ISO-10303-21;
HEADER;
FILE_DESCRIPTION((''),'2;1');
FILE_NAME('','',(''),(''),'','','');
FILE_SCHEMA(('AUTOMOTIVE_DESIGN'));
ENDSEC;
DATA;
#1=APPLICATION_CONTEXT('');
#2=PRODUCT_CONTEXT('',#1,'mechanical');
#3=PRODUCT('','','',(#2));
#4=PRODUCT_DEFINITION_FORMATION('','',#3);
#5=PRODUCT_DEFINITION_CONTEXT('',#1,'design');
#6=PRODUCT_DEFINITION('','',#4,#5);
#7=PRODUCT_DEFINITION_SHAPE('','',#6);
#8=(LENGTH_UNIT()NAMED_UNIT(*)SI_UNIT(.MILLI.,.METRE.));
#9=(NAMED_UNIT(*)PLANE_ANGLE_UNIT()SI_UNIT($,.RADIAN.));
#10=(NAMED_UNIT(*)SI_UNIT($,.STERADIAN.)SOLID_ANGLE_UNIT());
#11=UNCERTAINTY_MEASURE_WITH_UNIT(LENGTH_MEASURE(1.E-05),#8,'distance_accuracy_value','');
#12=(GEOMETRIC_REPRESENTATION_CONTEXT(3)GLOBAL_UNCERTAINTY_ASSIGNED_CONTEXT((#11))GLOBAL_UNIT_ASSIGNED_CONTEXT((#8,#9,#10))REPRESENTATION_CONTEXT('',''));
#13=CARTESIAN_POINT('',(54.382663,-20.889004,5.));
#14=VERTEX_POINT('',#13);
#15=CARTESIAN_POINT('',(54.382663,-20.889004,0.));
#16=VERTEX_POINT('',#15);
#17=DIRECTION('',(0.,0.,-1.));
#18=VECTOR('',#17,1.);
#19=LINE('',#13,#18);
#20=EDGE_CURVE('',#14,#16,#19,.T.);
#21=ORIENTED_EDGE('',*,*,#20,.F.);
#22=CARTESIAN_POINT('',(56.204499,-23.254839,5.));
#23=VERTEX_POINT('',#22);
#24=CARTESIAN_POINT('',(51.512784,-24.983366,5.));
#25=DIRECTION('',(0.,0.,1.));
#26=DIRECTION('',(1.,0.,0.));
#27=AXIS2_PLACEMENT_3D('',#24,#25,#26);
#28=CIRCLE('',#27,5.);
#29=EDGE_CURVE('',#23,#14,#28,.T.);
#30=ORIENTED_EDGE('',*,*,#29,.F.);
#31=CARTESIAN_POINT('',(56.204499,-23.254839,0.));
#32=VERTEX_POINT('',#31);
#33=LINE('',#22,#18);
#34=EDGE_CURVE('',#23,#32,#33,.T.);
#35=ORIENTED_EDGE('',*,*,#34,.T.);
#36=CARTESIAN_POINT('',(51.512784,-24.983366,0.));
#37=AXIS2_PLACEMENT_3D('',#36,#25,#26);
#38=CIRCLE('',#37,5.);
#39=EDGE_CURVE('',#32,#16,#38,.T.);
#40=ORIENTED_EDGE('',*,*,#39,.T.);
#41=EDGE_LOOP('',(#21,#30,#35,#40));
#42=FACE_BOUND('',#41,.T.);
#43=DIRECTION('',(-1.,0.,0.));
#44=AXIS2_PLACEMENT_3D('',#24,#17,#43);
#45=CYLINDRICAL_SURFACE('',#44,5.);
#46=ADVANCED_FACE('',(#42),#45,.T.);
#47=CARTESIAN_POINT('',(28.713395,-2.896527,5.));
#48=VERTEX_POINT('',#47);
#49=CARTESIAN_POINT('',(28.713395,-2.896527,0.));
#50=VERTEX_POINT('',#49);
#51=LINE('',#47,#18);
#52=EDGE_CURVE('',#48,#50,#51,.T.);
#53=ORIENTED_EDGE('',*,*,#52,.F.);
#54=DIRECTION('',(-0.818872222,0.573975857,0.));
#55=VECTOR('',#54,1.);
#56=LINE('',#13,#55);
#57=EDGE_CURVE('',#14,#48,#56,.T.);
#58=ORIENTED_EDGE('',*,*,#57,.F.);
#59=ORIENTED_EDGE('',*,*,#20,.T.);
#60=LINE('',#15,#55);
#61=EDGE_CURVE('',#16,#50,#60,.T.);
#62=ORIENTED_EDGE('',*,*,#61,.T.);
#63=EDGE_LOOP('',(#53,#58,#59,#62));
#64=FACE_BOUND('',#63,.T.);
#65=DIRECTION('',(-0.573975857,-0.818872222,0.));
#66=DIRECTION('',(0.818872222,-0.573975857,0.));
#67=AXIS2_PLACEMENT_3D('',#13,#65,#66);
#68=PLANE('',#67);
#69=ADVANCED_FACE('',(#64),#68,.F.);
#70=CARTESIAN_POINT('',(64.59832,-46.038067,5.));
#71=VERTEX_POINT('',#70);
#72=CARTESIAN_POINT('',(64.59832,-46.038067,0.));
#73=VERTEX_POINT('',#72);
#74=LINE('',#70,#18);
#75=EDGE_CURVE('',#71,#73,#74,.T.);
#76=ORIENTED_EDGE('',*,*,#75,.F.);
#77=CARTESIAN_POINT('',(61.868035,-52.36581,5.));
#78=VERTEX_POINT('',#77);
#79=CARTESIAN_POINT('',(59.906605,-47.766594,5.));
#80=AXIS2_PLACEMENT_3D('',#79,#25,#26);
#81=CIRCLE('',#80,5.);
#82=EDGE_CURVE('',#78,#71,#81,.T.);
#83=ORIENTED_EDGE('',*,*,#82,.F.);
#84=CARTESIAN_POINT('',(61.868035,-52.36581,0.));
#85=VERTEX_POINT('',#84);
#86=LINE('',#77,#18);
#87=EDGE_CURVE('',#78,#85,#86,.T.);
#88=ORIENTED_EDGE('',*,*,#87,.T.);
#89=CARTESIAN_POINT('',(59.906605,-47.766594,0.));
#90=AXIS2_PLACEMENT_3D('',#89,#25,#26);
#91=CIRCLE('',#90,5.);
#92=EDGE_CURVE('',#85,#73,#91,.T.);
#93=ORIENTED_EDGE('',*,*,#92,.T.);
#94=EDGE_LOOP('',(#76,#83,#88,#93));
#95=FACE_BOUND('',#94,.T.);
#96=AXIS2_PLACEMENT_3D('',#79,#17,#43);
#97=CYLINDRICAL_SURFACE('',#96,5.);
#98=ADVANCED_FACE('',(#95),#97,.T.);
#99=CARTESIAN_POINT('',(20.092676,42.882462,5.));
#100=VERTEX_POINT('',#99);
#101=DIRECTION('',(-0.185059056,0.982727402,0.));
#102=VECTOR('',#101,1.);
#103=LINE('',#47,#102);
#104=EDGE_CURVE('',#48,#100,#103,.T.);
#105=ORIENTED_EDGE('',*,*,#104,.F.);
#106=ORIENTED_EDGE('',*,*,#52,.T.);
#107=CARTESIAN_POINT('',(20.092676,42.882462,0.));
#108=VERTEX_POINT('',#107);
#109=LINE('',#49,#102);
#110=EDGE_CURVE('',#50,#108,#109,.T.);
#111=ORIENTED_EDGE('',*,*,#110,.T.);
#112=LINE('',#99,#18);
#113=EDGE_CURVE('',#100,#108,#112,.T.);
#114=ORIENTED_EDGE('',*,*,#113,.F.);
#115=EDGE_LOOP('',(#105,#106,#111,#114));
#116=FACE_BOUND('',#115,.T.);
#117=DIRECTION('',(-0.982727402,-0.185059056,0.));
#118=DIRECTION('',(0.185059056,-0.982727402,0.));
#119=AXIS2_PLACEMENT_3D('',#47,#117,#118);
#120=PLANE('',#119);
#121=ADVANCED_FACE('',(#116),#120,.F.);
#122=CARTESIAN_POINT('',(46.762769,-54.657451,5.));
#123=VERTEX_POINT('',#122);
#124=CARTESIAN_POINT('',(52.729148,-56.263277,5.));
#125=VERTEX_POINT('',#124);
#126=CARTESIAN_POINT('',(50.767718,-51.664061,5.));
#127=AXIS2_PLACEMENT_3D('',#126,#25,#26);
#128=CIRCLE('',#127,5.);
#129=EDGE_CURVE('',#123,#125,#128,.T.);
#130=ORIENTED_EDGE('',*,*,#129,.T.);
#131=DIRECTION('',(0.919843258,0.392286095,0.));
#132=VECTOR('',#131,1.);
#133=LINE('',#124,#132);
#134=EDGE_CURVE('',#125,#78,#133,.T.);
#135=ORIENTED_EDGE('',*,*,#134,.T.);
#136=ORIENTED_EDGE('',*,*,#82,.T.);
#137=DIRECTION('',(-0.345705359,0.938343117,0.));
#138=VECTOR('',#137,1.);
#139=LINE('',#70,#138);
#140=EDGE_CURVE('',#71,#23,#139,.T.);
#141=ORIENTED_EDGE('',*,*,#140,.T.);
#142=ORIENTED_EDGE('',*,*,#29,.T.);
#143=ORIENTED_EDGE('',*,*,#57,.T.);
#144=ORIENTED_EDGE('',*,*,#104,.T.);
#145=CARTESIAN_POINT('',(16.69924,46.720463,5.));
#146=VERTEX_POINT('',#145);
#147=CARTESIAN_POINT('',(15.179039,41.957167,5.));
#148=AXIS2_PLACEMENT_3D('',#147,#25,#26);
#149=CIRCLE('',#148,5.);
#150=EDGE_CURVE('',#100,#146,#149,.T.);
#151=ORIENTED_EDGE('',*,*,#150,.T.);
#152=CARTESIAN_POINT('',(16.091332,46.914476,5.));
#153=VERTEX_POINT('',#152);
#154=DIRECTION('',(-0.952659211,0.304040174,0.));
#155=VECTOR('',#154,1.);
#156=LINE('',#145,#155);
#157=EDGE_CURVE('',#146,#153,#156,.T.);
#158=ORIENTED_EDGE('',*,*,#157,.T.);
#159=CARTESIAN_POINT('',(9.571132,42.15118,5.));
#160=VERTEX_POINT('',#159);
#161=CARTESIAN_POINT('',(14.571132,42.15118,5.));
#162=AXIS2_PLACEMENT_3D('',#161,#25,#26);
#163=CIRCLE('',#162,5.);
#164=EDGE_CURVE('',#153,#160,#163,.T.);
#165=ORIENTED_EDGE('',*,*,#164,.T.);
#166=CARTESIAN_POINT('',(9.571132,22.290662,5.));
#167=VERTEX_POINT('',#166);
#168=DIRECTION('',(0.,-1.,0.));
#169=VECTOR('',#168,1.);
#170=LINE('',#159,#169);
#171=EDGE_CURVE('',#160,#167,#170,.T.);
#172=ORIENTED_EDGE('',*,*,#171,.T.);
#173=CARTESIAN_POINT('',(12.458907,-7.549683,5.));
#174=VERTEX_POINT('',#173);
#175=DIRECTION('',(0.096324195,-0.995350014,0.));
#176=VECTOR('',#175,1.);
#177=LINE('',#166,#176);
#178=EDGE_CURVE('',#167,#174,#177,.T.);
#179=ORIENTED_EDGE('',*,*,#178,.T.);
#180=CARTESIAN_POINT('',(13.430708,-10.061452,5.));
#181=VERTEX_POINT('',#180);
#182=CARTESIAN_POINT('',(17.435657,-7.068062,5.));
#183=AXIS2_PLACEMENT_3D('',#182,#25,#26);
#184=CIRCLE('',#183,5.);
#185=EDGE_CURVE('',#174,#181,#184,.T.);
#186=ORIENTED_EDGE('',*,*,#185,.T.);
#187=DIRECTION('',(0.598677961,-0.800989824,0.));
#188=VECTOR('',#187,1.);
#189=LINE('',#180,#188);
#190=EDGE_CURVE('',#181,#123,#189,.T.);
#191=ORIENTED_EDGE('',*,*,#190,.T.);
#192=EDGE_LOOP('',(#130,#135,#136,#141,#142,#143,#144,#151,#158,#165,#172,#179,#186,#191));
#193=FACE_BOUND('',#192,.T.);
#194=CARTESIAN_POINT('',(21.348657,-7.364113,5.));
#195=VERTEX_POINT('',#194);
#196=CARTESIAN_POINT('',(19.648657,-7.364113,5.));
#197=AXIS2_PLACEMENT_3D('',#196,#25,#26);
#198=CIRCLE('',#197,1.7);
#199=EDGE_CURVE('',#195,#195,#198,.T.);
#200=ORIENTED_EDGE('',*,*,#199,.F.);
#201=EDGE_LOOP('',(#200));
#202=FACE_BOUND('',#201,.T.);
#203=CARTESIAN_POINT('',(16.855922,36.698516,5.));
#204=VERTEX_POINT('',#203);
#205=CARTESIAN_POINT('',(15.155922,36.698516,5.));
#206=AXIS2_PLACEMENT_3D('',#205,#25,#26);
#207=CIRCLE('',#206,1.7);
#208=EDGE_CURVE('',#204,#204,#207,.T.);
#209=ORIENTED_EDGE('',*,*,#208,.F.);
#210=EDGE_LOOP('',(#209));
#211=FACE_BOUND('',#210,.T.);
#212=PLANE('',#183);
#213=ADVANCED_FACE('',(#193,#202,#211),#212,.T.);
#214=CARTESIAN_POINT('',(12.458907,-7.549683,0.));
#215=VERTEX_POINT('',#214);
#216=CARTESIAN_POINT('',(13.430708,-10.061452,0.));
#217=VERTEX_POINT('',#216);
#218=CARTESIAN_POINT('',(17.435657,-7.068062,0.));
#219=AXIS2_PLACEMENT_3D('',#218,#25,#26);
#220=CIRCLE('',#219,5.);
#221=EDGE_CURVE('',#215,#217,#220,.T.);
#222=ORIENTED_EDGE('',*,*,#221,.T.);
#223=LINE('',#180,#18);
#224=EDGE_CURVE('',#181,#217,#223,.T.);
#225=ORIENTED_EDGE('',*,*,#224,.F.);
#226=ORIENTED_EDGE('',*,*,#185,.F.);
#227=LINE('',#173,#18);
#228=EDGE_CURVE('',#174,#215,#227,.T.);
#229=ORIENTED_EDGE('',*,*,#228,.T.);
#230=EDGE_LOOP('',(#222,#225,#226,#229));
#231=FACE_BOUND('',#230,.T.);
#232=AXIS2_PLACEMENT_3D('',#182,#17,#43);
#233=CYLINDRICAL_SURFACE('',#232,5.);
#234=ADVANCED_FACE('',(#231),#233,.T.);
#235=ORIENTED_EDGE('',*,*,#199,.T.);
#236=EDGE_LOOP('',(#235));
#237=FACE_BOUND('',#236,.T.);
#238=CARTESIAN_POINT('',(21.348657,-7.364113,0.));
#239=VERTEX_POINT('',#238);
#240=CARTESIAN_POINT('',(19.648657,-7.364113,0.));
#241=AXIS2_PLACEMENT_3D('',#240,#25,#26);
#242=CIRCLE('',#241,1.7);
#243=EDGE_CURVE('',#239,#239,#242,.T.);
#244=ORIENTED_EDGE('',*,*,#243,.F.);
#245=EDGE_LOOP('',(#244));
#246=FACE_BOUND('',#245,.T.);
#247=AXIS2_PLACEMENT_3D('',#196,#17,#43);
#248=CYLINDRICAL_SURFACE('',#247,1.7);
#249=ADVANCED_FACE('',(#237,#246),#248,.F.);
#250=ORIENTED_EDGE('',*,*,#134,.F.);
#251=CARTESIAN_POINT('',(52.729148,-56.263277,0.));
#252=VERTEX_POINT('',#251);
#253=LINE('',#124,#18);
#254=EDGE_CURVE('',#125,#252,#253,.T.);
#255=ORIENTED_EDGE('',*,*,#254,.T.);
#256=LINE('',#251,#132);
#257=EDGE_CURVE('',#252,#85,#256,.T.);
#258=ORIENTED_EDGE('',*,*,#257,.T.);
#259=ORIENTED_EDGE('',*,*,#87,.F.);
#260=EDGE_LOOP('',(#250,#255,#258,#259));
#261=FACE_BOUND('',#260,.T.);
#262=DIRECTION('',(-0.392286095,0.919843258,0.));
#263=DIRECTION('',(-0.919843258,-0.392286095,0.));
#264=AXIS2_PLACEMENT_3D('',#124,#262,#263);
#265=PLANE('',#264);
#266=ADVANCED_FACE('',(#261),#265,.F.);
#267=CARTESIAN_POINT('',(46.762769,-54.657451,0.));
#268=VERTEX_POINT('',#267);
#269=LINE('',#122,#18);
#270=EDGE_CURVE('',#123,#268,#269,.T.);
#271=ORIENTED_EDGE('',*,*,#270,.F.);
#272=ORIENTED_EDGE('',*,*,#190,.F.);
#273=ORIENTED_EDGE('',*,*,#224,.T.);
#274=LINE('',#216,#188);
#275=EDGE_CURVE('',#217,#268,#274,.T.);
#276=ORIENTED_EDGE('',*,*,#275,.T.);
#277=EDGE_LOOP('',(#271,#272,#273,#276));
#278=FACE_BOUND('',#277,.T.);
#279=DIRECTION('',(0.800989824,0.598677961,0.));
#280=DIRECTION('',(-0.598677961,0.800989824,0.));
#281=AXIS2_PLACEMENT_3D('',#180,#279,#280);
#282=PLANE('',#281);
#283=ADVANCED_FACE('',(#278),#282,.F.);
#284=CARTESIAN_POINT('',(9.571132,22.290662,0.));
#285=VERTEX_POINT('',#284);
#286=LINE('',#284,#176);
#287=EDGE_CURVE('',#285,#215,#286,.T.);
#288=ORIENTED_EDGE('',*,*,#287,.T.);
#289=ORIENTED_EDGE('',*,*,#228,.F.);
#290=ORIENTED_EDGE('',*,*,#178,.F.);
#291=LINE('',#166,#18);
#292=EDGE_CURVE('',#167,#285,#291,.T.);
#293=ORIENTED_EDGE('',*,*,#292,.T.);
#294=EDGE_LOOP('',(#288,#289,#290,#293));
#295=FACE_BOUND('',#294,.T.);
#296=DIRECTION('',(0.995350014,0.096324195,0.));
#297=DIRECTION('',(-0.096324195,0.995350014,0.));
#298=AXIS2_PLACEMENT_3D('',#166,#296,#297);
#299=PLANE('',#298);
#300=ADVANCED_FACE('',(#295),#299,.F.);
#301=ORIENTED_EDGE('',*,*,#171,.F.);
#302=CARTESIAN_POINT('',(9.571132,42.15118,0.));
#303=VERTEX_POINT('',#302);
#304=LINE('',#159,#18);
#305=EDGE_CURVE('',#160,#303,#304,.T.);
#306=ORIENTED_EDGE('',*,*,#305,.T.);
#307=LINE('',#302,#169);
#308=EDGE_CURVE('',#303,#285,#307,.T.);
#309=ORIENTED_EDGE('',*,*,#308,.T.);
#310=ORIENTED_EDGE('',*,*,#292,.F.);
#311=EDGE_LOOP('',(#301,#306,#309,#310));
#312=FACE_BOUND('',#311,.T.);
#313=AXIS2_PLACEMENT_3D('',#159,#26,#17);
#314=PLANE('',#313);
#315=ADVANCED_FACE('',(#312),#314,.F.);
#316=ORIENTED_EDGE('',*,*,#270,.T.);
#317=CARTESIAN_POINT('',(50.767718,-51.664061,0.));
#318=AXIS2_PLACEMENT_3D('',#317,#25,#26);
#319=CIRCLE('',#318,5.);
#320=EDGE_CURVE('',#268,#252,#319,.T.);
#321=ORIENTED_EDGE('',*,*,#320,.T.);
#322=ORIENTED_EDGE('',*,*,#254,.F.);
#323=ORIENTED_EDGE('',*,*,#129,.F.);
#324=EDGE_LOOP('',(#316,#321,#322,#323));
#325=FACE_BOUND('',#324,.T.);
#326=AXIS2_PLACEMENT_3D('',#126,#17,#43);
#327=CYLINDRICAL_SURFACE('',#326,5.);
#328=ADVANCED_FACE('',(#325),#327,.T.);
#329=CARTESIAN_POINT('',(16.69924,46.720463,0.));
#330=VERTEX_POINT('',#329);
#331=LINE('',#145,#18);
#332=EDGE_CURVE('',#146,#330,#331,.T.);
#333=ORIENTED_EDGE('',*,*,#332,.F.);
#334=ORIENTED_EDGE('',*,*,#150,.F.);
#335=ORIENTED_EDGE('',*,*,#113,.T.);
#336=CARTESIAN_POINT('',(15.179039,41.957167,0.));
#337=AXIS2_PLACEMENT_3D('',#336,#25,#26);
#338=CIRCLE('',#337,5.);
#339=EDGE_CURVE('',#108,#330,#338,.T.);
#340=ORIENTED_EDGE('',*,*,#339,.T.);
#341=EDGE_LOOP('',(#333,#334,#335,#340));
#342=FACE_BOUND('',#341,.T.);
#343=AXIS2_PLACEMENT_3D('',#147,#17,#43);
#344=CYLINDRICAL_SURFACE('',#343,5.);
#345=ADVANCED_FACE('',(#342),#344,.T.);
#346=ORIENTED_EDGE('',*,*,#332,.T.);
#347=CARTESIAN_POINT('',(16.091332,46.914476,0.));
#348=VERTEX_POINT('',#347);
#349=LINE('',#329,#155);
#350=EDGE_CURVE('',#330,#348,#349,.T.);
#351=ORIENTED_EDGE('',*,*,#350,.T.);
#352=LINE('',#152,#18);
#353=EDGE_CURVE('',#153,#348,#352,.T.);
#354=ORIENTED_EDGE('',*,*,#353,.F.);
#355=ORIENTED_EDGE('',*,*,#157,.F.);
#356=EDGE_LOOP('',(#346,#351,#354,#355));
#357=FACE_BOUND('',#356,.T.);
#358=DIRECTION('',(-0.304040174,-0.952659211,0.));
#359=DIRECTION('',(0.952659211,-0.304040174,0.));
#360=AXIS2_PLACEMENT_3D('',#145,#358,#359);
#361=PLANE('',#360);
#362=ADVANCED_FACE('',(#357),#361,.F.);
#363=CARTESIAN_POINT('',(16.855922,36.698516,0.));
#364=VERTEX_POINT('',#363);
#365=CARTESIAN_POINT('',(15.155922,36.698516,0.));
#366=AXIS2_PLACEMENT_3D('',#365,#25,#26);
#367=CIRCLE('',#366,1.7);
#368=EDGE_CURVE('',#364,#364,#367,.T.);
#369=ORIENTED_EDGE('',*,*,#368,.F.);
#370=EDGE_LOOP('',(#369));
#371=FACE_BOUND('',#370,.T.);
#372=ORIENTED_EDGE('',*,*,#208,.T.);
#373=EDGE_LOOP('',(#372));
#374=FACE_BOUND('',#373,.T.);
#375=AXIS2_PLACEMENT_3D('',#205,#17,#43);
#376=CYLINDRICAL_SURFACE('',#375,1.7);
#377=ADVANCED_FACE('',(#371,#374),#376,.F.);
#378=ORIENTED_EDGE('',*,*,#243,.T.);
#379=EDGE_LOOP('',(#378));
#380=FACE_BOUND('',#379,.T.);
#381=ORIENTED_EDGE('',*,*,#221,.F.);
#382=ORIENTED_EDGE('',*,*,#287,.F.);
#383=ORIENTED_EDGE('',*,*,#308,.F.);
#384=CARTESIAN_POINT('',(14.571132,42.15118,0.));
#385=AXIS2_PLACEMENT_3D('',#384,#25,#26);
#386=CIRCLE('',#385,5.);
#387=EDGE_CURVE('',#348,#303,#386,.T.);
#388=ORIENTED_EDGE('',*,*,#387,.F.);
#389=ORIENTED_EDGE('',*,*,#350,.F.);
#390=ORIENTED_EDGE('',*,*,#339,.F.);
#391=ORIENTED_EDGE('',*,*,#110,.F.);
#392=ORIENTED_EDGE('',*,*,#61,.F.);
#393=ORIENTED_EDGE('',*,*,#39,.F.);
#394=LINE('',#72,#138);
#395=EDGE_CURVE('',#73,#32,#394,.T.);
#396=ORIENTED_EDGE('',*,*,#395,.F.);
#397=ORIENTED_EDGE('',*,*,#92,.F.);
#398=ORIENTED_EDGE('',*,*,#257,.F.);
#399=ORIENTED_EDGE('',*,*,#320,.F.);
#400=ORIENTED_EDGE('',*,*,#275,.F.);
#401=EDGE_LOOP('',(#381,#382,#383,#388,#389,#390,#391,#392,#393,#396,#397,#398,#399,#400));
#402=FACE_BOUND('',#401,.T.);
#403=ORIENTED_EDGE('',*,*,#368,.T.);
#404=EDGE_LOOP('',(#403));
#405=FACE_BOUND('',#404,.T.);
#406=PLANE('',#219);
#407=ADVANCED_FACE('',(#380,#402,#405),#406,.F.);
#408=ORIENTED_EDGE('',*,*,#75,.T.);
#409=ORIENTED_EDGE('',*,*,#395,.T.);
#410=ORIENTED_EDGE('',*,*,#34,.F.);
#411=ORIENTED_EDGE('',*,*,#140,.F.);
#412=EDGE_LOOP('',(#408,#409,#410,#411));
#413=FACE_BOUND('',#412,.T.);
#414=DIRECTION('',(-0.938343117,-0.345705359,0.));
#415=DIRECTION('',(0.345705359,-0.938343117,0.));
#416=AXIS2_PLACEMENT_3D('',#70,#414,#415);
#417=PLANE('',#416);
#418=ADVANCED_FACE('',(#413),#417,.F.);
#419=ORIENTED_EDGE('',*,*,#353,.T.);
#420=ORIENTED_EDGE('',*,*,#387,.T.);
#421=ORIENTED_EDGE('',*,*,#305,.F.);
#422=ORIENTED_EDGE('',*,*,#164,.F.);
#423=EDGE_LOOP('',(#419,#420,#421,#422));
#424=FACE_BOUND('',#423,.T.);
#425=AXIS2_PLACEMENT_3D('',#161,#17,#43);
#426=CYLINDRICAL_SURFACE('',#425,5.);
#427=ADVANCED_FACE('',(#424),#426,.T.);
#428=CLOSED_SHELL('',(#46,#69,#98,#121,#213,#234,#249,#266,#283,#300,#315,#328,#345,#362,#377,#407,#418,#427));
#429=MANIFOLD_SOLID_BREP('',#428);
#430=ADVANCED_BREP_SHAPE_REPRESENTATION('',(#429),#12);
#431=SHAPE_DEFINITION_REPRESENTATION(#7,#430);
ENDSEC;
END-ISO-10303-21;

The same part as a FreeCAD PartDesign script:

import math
import FreeCAD as App
import Part
import Sketcher

V = App.Vector
Q = App.Units.Quantity

doc = App.newDocument("Part")
body = doc.addObject("PartDesign::Body", "Body")

sketch1 = body.newObject("Sketcher::SketchObject", "Sketch")
sketch1.AttachmentSupport = (doc.getObject("XY_Plane"), [""])
sketch1.MapMode = "FlatFace"
sketch1.addGeometry(Part.LineSegment(V(9.6, 22.3, 0), V(12.5, -7.5, 0)), False)
sketch1.addGeometry(Part.ArcOfCircle(Part.Circle(V(17.4, -7.1, 0), V(0, 0, 1), 5), math.radians(-174), math.radians(-143)), False)
sketch1.addGeometry(Part.LineSegment(V(13.4, -10.1, 0), V(46.8, -54.7, 0)), False)
sketch1.addGeometry(Part.ArcOfCircle(Part.Circle(V(50.8, -51.7, 0), V(0, 0, 1), 5), math.radians(-143), math.radians(-67)), False)
sketch1.addGeometry(Part.LineSegment(V(52.7, -56.3, 0), V(61.9, -52.4, 0)), False)
sketch1.addGeometry(Part.ArcOfCircle(Part.Circle(V(59.9, -47.8, 0), V(0, 0, 1), 5), math.radians(-67), math.radians(20)), False)
sketch1.addGeometry(Part.LineSegment(V(64.6, -46, 0), V(56.2, -23.3, 0)), False)
sketch1.addGeometry(Part.ArcOfCircle(Part.Circle(V(51.5, -25, 0), V(0, 0, 1), 5), math.radians(20), math.radians(55)), False)
sketch1.addGeometry(Part.LineSegment(V(54.4, -20.9, 0), V(28.7, -2.9, 0)), False)
sketch1.addGeometry(Part.LineSegment(V(28.7, -2.9, 0), V(20.1, 42.9, 0)), False)
sketch1.addGeometry(Part.ArcOfCircle(Part.Circle(V(15.2, 42, 0), V(0, 0, 1), 5), math.radians(11), math.radians(72)), False)
sketch1.addGeometry(Part.LineSegment(V(16.7, 46.7, 0), V(16.1, 46.9, 0)), False)
sketch1.addGeometry(Part.ArcOfCircle(Part.Circle(V(14.6, 42.2, 0), V(0, 0, 1), 5), math.radians(72), math.radians(180)), False)
sketch1.addGeometry(Part.LineSegment(V(9.6, 42.2, 0), V(9.6, 22.3, 0)), False)
sketch1.addGeometry(Part.Circle(V(19.6, -7.4, 0), V(0, 0, 1), 1.7), False)
sketch1.addGeometry(Part.Circle(V(15.2, 36.7, 0), V(0, 0, 1), 1.7), False)
sketch1.addConstraint(Sketcher.Constraint("Tangent", 0, 2, 1, 1))
sketch1.addConstraint(Sketcher.Constraint("Tangent", 1, 2, 2, 1))
sketch1.addConstraint(Sketcher.Constraint("Tangent", 2, 2, 3, 1))
sketch1.addConstraint(Sketcher.Constraint("Tangent", 3, 2, 4, 1))
sketch1.addConstraint(Sketcher.Constraint("Tangent", 4, 2, 5, 1))
sketch1.addConstraint(Sketcher.Constraint("Tangent", 5, 2, 6, 1))
sketch1.addConstraint(Sketcher.Constraint("Tangent", 6, 2, 7, 1))
sketch1.addConstraint(Sketcher.Constraint("Tangent", 7, 2, 8, 1))
sketch1.addConstraint(Sketcher.Constraint("Coincident", 8, 2, 9, 1))
sketch1.addConstraint(Sketcher.Constraint("Tangent", 9, 2, 10, 1))
sketch1.addConstraint(Sketcher.Constraint("Tangent", 10, 2, 11, 1))
sketch1.addConstraint(Sketcher.Constraint("Tangent", 11, 2, 12, 1))
sketch1.addConstraint(Sketcher.Constraint("Tangent", 12, 2, 13, 1))
sketch1.addConstraint(Sketcher.Constraint("Coincident", 13, 2, 0, 1))
sketch1.addConstraint(Sketcher.Constraint("Vertical", 13))
sketch1.addConstraint(Sketcher.Constraint("Equal", 1, 3))
sketch1.addConstraint(Sketcher.Constraint("Equal", 3, 5))
sketch1.addConstraint(Sketcher.Constraint("Equal", 5, 7))
sketch1.addConstraint(Sketcher.Constraint("Equal", 7, 10))
sketch1.addConstraint(Sketcher.Constraint("Equal", 10, 12))
sketch1.addConstraint(Sketcher.Constraint("Equal", 14, 15))
sketch1.addConstraint(Sketcher.Constraint("Radius", 1, Q("5 mm")))
sketch1.addConstraint(Sketcher.Constraint("Diameter", 14, Q("3.4 mm")))
sketch1.addConstraint(Sketcher.Constraint("DistanceY", 3, 3, 1, 3, Q("44.595998 mm")))
sketch1.addConstraint(Sketcher.Constraint("DistanceX", 1, 3, 14, 3, Q("2.213 mm")))
sketch1.addConstraint(Sketcher.Constraint("DistanceY", 9, 2, 10, 2, Q("3.838001 mm")))
sketch1.addConstraint(Sketcher.Constraint("Distance", 8, Q("31.347099 mm")))
sketch1.addConstraint(Sketcher.Constraint("DistanceX", -1, 1, 6, 2, Q("56.204499 mm")))
sketch1.addConstraint(Sketcher.Constraint("DistanceY", 0, 2, 15, 3, Q("44.248199 mm")))
sketch1.addConstraint(Sketcher.Constraint("DistanceX", 0, 2, 1, 2, Q("0.971801 mm")))
sketch1.addConstraint(Sketcher.Constraint("DistanceX", 10, 3, 10, 2, Q("1.520201 mm")))
sketch1.addConstraint(Sketcher.Constraint("DistanceY", 13, 2, 9, 2, Q("20.5918 mm")))
sketch1.addConstraint(Sketcher.Constraint("Distance", 0, Q("29.979751 mm")))
sketch1.addConstraint(Sketcher.Constraint("Distance", 2, Q("55.676111 mm")))
sketch1.addConstraint(Sketcher.Constraint("Distance", 9, Q("46.583608 mm")))
sketch1.addConstraint(Sketcher.Constraint("DistanceY", 13, 2, 13, 1, Q("19.860518 mm")))
sketch1.addConstraint(Sketcher.Constraint("DistanceY", 3, 3, -1, 1, Q("51.664061 mm")))
sketch1.addConstraint(Sketcher.Constraint("DistanceX", -1, 1, 10, 3, Q("15.179039 mm")))
sketch1.addConstraint(Sketcher.Constraint("DistanceX", -1, 1, 15, 3, Q("15.155922 mm")))
sketch1.addConstraint(Sketcher.Constraint("DistanceX", -1, 1, 3, 2, Q("52.729148 mm")))
sketch1.addConstraint(Sketcher.Constraint("DistanceY", 4, 2, -1, 1, Q("52.36581 mm")))
sketch1.addConstraint(Sketcher.Constraint("DistanceY", 14, 3, 1, 3, Q("0.29605 mm")))
pad1 = body.newObject("PartDesign::Pad", "Pad")
pad1.Profile = sketch1
pad1.Length = 5

doc.recompute()
